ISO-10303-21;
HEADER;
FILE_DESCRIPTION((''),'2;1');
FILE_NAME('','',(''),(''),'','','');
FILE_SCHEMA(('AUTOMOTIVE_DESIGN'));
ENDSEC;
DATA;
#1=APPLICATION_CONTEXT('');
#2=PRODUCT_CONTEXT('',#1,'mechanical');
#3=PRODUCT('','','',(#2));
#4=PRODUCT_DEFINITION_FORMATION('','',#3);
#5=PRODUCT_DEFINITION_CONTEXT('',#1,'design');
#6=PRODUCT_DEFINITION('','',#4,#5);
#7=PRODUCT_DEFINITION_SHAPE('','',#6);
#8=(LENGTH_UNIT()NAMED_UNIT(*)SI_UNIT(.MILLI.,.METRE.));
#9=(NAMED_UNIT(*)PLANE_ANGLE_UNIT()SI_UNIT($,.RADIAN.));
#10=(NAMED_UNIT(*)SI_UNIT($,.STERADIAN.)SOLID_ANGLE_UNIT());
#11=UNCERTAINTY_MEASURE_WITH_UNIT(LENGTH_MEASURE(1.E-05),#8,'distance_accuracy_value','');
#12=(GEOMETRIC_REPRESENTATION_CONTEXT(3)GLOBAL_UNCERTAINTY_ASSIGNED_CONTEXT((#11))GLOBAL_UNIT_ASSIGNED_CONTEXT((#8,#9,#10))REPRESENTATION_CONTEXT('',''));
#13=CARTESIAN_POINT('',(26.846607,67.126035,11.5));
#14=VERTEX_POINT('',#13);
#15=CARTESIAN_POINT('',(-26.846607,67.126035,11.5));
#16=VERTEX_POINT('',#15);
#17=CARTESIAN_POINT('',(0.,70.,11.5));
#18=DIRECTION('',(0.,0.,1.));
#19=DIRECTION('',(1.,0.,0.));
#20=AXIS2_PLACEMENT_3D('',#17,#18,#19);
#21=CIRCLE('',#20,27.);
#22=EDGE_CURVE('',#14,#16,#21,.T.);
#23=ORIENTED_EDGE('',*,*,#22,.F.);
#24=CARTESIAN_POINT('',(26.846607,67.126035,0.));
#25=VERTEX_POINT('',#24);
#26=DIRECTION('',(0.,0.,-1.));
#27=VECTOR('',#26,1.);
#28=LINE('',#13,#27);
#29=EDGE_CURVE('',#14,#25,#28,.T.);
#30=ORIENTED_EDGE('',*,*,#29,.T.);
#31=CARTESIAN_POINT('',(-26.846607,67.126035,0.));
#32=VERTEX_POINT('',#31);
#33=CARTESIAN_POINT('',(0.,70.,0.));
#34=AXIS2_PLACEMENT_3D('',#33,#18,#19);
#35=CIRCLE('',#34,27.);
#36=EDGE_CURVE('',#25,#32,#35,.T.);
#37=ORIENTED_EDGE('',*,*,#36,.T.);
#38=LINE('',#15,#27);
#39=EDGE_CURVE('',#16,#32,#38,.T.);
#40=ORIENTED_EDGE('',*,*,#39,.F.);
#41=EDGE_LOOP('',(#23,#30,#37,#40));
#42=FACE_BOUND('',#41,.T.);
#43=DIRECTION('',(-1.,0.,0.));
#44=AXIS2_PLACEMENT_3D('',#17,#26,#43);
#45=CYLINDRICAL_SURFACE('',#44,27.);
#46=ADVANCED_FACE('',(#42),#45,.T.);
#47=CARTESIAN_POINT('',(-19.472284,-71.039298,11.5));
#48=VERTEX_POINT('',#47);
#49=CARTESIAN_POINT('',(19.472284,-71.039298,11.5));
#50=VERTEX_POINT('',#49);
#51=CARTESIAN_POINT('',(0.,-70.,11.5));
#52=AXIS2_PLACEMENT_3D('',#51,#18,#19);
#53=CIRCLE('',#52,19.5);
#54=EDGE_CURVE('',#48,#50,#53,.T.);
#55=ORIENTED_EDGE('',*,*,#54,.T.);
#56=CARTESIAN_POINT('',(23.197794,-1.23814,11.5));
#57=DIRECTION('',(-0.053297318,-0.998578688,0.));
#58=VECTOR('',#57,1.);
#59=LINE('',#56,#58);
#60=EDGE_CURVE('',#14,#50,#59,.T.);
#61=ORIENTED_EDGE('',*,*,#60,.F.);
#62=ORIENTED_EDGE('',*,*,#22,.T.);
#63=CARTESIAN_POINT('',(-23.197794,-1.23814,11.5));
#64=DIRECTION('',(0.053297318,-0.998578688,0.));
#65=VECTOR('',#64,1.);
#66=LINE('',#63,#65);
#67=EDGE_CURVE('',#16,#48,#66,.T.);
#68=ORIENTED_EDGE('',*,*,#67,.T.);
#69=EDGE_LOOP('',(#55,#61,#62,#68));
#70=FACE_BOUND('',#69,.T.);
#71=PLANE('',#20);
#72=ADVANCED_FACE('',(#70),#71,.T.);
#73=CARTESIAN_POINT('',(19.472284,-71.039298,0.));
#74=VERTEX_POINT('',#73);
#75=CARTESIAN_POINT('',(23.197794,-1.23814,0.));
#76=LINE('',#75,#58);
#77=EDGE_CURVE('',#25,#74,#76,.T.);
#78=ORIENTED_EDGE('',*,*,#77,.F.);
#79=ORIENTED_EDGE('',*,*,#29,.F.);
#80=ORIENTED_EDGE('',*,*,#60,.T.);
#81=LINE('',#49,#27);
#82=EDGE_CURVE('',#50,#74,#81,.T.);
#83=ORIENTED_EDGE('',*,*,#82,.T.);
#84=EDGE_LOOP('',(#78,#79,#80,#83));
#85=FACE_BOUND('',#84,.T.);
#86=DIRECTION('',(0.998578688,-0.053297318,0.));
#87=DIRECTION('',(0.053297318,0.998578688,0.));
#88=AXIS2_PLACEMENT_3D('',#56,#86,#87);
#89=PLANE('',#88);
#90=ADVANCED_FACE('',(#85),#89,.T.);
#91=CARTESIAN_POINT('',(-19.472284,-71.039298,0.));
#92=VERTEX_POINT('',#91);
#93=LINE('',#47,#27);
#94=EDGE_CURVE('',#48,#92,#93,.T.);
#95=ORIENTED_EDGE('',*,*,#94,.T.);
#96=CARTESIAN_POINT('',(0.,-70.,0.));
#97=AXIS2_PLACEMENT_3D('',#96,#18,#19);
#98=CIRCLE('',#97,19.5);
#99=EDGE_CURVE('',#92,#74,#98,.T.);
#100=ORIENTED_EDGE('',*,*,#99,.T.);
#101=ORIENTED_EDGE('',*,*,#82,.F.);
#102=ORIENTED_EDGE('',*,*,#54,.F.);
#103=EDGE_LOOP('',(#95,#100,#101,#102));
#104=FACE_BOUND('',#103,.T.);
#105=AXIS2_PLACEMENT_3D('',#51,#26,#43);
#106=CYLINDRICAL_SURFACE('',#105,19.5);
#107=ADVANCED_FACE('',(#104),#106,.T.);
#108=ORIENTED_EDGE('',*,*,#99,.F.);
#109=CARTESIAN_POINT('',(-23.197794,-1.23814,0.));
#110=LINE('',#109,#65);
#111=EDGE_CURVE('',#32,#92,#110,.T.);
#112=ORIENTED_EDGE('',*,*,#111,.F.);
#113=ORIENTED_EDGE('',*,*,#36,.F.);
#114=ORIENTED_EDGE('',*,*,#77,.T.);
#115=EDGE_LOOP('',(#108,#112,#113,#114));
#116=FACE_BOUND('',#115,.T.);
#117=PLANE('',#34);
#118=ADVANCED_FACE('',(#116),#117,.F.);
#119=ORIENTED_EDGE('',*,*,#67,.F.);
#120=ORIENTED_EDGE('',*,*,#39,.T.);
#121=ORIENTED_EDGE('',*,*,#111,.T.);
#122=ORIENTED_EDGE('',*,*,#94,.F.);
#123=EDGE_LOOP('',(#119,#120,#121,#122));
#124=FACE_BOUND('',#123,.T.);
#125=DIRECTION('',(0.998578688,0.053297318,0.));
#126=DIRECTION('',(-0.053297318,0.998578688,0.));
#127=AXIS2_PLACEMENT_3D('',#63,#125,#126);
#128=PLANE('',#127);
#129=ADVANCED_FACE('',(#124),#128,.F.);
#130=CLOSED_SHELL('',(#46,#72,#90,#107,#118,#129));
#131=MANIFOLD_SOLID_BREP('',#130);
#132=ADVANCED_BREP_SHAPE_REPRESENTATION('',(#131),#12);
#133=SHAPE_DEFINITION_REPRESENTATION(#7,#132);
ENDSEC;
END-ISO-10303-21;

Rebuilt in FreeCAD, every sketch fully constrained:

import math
import FreeCAD as App
import Part
import Sketcher
from FreeCAD import Vector
Q = App.Units.Quantity

doc = App.newDocument("Part")
params = doc.addObject("Spreadsheet::Sheet", "Params")
for row, (alias, value) in enumerate([
    ("sketch1_diameter", "54 mm"),
    ("pad1_length", "11.5 mm"),
    ("sketch2_radius", "27 mm"),
    ("sketch2_radius2", "19.5 mm"),
    ("pad2_length", "11.5 mm"),
], start=1):
    params.set(f"A{row}", alias)
    params.set(f"B{row}", "=" + value)
    params.setAlias(f"B{row}", alias)

body = doc.addObject("PartDesign::Body", "Body")

sketch1 = doc.addObject("Sketcher::SketchObject", "Sketch")
body.addObject(sketch1)
sketch1.AttachmentSupport = (doc.XY_Plane, [""])
sketch1.MapMode = "FlatFace"
sketch1.addGeometry(Part.Circle(Vector(0, 70, 0), Vector(0, 0, 1), 27), False)
sketch1.addConstraint([
    Sketcher.Constraint("PointOnObject", 0, 3, -2),
    Sketcher.Constraint("Diameter", 0, Q("54 mm")),
    Sketcher.Constraint("DistanceY", -1, 1, 0, 3, Q("70 mm")),
])
sketch1.setExpression("Constraints[1]", "Params.sketch1_diameter")
pad1 = doc.addObject("PartDesign::Pad", "Pad")
body.addObject(pad1)
pad1.Profile = sketch1
pad1.setExpression("Length", "Params.pad1_length")

sketch2 = doc.addObject("Sketcher::SketchObject", "Sketch001")
body.addObject(sketch2)
sketch2.AttachmentSupport = (doc.XY_Plane, [""])
sketch2.MapMode = "FlatFace"
sketch2.addGeometry([
    Part.LineSegment(Vector(19.472284, -71.039298, 0), Vector(26.846607, 67.126035, 0)),
    Part.ArcOfCircle(Part.Circle(Vector(0, 70, 0), Vector(0, 0, 1), 27), math.radians(-173.889682), math.radians(-6.110318)),
    Part.LineSegment(Vector(-26.846607, 67.126035, 0), Vector(-19.472284, -71.039298, 0)),
    Part.ArcOfCircle(Part.Circle(Vector(0, -70, 0), Vector(0, 0, 1), 19.5), math.radians(-176.944841), math.radians(-3.055159)),
], False)
sketch2.addConstraint([
    Sketcher.Constraint("Coincident", 0, 2, 1, 2),
    Sketcher.Constraint("Coincident", 1, 1, 2, 1),
    Sketcher.Constraint("Tangent", 2, 2, 3, 1),
    Sketcher.Constraint("Tangent", 3, 2, 0, 1),
    Sketcher.Constraint("Symmetric", 1, 3, 3, 3, -1, 1),
    Sketcher.Constraint("Symmetric", 0, 2, 1, 1, -2),
    Sketcher.Constraint("Radius", 1, Q("27 mm")),
    Sketcher.Constraint("Radius", 3, Q("19.5 mm")),
    Sketcher.Constraint("DistanceY", -1, 1, 1, 3, Q("70 mm")),
    Sketcher.Constraint("Distance", 0, Q("138.361989 mm")),
])
sketch2.setExpression("Constraints[6]", "Params.sketch2_radius")
sketch2.setExpression("Constraints[7]", "Params.sketch2_radius2")
pad2 = doc.addObject("PartDesign::Pad", "Pad001")
body.addObject(pad2)
pad2.Profile = sketch2
pad2.setExpression("Length", "Params.pad2_length")

doc.recompute()
